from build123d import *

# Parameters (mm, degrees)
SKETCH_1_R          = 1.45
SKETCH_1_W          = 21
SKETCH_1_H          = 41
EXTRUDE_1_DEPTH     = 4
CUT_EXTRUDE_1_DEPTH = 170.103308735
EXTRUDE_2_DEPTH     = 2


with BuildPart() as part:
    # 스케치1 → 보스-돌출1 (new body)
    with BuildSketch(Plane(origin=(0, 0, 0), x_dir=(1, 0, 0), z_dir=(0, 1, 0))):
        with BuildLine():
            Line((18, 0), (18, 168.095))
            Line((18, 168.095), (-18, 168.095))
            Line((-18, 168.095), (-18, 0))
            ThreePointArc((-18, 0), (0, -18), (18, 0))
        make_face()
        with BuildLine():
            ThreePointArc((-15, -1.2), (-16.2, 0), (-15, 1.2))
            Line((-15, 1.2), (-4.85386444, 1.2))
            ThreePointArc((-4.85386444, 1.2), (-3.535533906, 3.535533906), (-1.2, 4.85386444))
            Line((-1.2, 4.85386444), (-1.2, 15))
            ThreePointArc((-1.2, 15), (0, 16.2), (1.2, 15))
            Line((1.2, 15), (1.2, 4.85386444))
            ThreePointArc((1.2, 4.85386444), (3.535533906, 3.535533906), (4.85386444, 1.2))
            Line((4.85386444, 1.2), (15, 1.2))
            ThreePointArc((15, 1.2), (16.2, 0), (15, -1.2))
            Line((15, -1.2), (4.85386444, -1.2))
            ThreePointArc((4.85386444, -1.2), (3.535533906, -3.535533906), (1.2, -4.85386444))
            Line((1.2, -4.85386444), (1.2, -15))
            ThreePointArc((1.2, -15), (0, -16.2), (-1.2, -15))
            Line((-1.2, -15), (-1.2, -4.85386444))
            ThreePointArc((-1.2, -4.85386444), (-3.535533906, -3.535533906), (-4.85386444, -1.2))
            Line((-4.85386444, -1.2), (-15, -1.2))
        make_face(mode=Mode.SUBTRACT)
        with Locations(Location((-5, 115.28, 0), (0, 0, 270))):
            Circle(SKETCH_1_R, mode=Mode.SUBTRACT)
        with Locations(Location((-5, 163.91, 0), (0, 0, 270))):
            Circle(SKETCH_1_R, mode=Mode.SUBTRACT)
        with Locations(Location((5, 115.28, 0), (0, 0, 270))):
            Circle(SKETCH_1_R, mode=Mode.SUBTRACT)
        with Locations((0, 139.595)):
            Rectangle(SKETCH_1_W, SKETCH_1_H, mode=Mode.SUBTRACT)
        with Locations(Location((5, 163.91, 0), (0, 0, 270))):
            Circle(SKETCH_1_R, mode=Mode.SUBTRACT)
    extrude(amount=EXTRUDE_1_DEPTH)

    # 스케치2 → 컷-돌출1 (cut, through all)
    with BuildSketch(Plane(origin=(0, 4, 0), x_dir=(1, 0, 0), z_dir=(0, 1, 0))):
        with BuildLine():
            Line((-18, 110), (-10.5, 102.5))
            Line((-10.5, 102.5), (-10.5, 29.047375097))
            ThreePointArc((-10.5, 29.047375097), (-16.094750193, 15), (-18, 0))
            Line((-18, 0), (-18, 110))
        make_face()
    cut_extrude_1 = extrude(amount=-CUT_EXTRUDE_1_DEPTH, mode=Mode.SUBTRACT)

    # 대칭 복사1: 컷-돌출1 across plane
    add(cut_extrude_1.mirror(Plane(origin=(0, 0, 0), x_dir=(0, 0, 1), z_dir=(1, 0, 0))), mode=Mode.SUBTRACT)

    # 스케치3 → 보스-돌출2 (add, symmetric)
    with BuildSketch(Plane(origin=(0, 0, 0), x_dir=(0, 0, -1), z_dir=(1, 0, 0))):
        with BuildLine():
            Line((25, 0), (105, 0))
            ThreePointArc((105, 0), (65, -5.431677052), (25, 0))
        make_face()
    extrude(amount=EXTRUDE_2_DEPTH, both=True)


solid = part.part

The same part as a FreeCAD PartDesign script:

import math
import FreeCAD as App
import Part
import Sketcher
Q = App.Units.Quantity

doc = App.newDocument("Part")
body = doc.addObject("PartDesign::Body", "Body")

# Sketch on XZ plane
sketch1 = body.newObject("Sketcher::SketchObject", "Sketch")
sketch1.AttachmentSupport = (doc.getObject("XZ_Plane"), [""])
sketch1.MapMode = "FlatFace"
sketch1.addGeometry([
    Part.LineSegment(App.Vector(18, 0, 0), App.Vector(18, -168.095, 0)),  # 0
    Part.LineSegment(App.Vector(18, -168.095, 0), App.Vector(-18, -168.095, 0)),  # 1
    Part.LineSegment(App.Vector(-18, -168.095, 0), App.Vector(-18, 0, 0)),  # 2
    Part.ArcOfCircle(Part.Circle(App.Vector(0, 0, 0), App.Vector(0, 0, 1), 18), math.radians(0), math.radians(180)),  # 3
    Part.LineSegment(App.Vector(-4.853864, 1.2, 0), App.Vector(-15, 1.2, 0)),  # 4
    Part.ArcOfCircle(Part.Circle(App.Vector(-15, 0, 0), App.Vector(0, 0, 1), 1.2), math.radians(90), math.radians(270)),  # 5
    Part.LineSegment(App.Vector(-15, -1.2, 0), App.Vector(-4.853864, -1.2, 0)),  # 6
    Part.ArcOfCircle(Part.Circle(App.Vector(0, 0, 0), App.Vector(0, 0, 1), 5), math.radians(-166.11346), math.radians(-103.88654)),  # 7
    Part.LineSegment(App.Vector(-1.2, -4.853864, 0), App.Vector(-1.2, -15, 0)),  # 8
    Part.ArcOfCircle(Part.Circle(App.Vector(0, -15, 0), App.Vector(0, 0, 1), 1.2), math.radians(180), math.radians(360)),  # 9
    Part.LineSegment(App.Vector(1.2, -15, 0), App.Vector(1.2, -4.853864, 0)),  # 10
    Part.ArcOfCircle(Part.Circle(App.Vector(0, 0, 0), App.Vector(0, 0, 1), 5), math.radians(-76.11346), math.radians(-13.88654)),  # 11
    Part.LineSegment(App.Vector(4.853864, -1.2, 0), App.Vector(15, -1.2, 0)),  # 12
    Part.ArcOfCircle(Part.Circle(App.Vector(15, 0, 0), App.Vector(0, 0, 1), 1.2), math.radians(-90), math.radians(90)),  # 13
    Part.LineSegment(App.Vector(15, 1.2, 0), App.Vector(4.853864, 1.2, 0)),  # 14
    Part.ArcOfCircle(Part.Circle(App.Vector(0, 0, 0), App.Vector(0, 0, 1), 5), math.radians(13.88654), math.radians(76.11346)),  # 15
    Part.LineSegment(App.Vector(1.2, 4.853864, 0), App.Vector(1.2, 15, 0)),  # 16
    Part.ArcOfCircle(Part.Circle(App.Vector(0, 15, 0), App.Vector(0, 0, 1), 1.2), math.radians(0), math.radians(180)),  # 17
    Part.LineSegment(App.Vector(-1.2, 15, 0), App.Vector(-1.2, 4.853864, 0)),  # 18
    Part.ArcOfCircle(Part.Circle(App.Vector(0, 0, 0), App.Vector(0, 0, 1), 5), math.radians(103.88654), math.radians(166.11346)),  # 19
    Part.Circle(App.Vector(-5, -115.28, 0), App.Vector(0, 0, 1), 1.45),  # 20
    Part.Circle(App.Vector(-5, -163.91, 0), App.Vector(0, 0, 1), 1.45),  # 21
    Part.Circle(App.Vector(5, -115.28, 0), App.Vector(0, 0, 1), 1.45),  # 22
    Part.LineSegment(App.Vector(10.5, -119.095, 0), App.Vector(-10.5, -119.095, 0)),  # 23
    Part.LineSegment(App.Vector(-10.5, -119.095, 0), App.Vector(-10.5, -160.095, 0)),  # 24
    Part.LineSegment(App.Vector(-10.5, -160.095, 0), App.Vector(10.5, -160.095, 0)),  # 25
    Part.LineSegment(App.Vector(10.5, -160.095, 0), App.Vector(10.5, -119.095, 0)),  # 26
    Part.Circle(App.Vector(5, -163.91, 0), App.Vector(0, 0, 1), 1.45),  # 27
], False)
sketch1.addConstraint([
    Sketcher.Constraint("Coincident", 0, 2, 1, 1),
    Sketcher.Constraint("Coincident", 1, 2, 2, 1),
    Sketcher.Constraint("Tangent", 2, 2, 3, 2),
    Sketcher.Constraint("Tangent", 3, 1, 0, 1),
    Sketcher.Constraint("Tangent", 4, 2, 5, 1),
    Sketcher.Constraint("Tangent", 5, 2, 6, 1),
    Sketcher.Constraint("Coincident", 6, 2, 7, 1),
    Sketcher.Constraint("Coincident", 7, 2, 8, 1),
    Sketcher.Constraint("Tangent", 8, 2, 9, 1),
    Sketcher.Constraint("Tangent", 9, 2, 10, 1),
    Sketcher.Constraint("Coincident", 10, 2, 11, 1),
    Sketcher.Constraint("Coincident", 11, 2, 12, 1),
    Sketcher.Constraint("Tangent", 12, 2, 13, 1),
    Sketcher.Constraint("Tangent", 13, 2, 14, 1),
    Sketcher.Constraint("Coincident", 14, 2, 15, 1),
    Sketcher.Constraint("Coincident", 15, 2, 16, 1),
    Sketcher.Constraint("Tangent", 16, 2, 17, 1),
    Sketcher.Constraint("Tangent", 17, 2, 18, 1),
    Sketcher.Constraint("Coincident", 18, 2, 19, 1),
    Sketcher.Constraint("Coincident", 19, 2, 4, 1),
    Sketcher.Constraint("Coincident", 23, 2, 24, 1),
    Sketcher.Constraint("Coincident", 24, 2, 25, 1),
    Sketcher.Constraint("Coincident", 25, 2, 26, 1),
    Sketcher.Constraint("Coincident", 26, 2, 23, 1),
    Sketcher.Constraint("Vertical", 0),
    Sketcher.Constraint("Horizontal", 1),
    Sketcher.Constraint("Vertical", 2),
    Sketcher.Constraint("Horizontal", 4),
    Sketcher.Constraint("Horizontal", 6),
    Sketcher.Constraint("Vertical", 8),
    Sketcher.Constraint("Vertical", 10),
    Sketcher.Constraint("Horizontal", 12),
    Sketcher.Constraint("Horizontal", 14),
    Sketcher.Constraint("Vertical", 16),
    Sketcher.Constraint("Vertical", 18),
    Sketcher.Constraint("Horizontal", 23),
    Sketcher.Constraint("Vertical", 24),
    Sketcher.Constraint("Horizontal", 25),
    Sketcher.Constraint("Vertical", 26),
    Sketcher.Constraint("Coincident", 3, 3, -1, 1),
    Sketcher.Constraint("Coincident", 7, 3, -1, 1),
    Sketcher.Constraint("Coincident", 11, 3, -1, 1),
    Sketcher.Constraint("Coincident", 15, 3, -1, 1),
    Sketcher.Constraint("Coincident", 19, 3, -1, 1),
    Sketcher.Constraint("Equal", 5, 9),
    Sketcher.Constraint("Equal", 7, 11),
    Sketcher.Constraint("Equal", 9, 13),
    Sketcher.Constraint("Equal", 11, 15),
    Sketcher.Constraint("Equal", 13, 17),
    Sketcher.Constraint("Equal", 15, 19),
    Sketcher.Constraint("Equal", 20, 21),
    Sketcher.Constraint("Equal", 21, 22),
    Sketcher.Constraint("Equal", 22, 27),
    Sketcher.Constraint("Symmetric", 5, 3, 13, 3, -1, 1),
    Sketcher.Constraint("Symmetric", 9, 3, 17, 3, -1, 1),
    Sketcher.Constraint("Symmetric", 20, 3, 22, 3, -2),
    Sketcher.Constraint("Symmetric", 21, 3, 27, 3, -2),
    Sketcher.Constraint("PointOnObject", 5, 3, -1),
    Sketcher.Constraint("PointOnObject", 9, 3, -2),
    Sketcher.Constraint("Vertical", 20, 3, 21, 3),
    Sketcher.Constraint("Equal", 14, 8),
    Sketcher.Constraint("Radius", 3, 18.0),
    Sketcher.Constraint("Radius", 7, 5.0),
    Sketcher.Constraint("Diameter", 20, 2.9),
    Sketcher.Constraint("Radius", 5, 1.2),
    Sketcher.Constraint("DistanceX", 23, 2, 23, 1, 21.0),
    Sketcher.Constraint("DistanceY", 24, 2, 24, 1, 41.0),
    Sketcher.Constraint("DistanceX", 5, 3, -1, 1, 15.0),
    Sketcher.Constraint("DistanceX", 20, 3, -1, 1, 5.0),
    Sketcher.Constraint("DistanceY", 1, 2, 23, 2, 49.0),
    Sketcher.Constraint("DistanceX", 23, 2, -1, 1, 10.5),
    Sketcher.Constraint("DistanceY", 0, 2, 0, 1, 168.095),
    Sketcher.Constraint("DistanceY", 20, 3, -1, 1, 115.28),
    Sketcher.Constraint("DistanceY", 21, 3, -1, 1, 163.91),
])
pad1 = body.newObject("PartDesign::Pad", "Pad")
pad1.Profile = sketch1
pad1.Length = 4
pad1.Reversed = True

# Sketch on XZ plane
sketch2 = body.newObject("Sketcher::SketchObject", "Sketch001")
sketch2.AttachmentSupport = (doc.getObject("XZ_Plane"), [""])
sketch2.MapMode = "FlatFace"
sketch2.AttachmentOffset = App.Placement(App.Vector(0, 0, -4), App.Rotation())
sketch2.addGeometry([
    Part.LineSegment(App.Vector(-10.5, -102.5, 0), App.Vector(-18, -110, 0)),
    Part.LineSegment(App.Vector(-18, -110, 0), App.Vector(-18, 0, 0)),
    Part.ArcOfCircle(Part.Circle(App.Vector(42, 0, 0), App.Vector(0, 0, 1), 60), math.radians(-180), math.radians(-151.044976)),
    Part.LineSegment(App.Vector(-10.5, -29.047375, 0), App.Vector(-10.5, -102.5, 0)),
], False)
sketch2.addConstraint([
    Sketcher.Constraint("Coincident", 0, 2, 1, 1),
    Sketcher.Constraint("Tangent", 1, 2, 2, 1),
    Sketcher.Constraint("Coincident", 2, 2, 3, 1),
    Sketcher.Constraint("Coincident", 3, 2, 0, 1),
    Sketcher.Constraint("Vertical", 1),
    Sketcher.Constraint("Vertical", 3),
    Sketcher.Constraint("PointOnObject", 2, 3, -1),
    Sketcher.Constraint("Radius", 2, 60.0),
    Sketcher.Constraint("DistanceY", 1, 1, 1, 2, 110.0),
    Sketcher.Constraint("Angle", 0, Q("-135 deg")),
    Sketcher.Constraint("DistanceX", -1, 1, 2, 3, 42.0),
    Sketcher.Constraint("DistanceX", 2, 2, -1, 1, 10.5),
])
pocket1 = body.newObject("PartDesign::Pocket", "Pocket")
pocket1.Profile = sketch2
pocket1.Type = "ThroughAll"
pocket1.Reversed = True
doc.recompute()

mirrored = body.newObject("PartDesign::Mirrored", "Mirrored")
mirrored.Originals = [pocket1]
mirrored.MirrorPlane = (doc.getObject("YZ_Plane"), [""])
body.Tip = mirrored

# Sketch on YZ plane
sketch3 = body.newObject("Sketcher::SketchObject", "Sketch002")
sketch3.AttachmentSupport = (doc.getObject("YZ_Plane"), [""])
sketch3.MapMode = "FlatFace"
sketch3.addGeometry([
    Part.LineSegment(App.Vector(0, -105, 0), App.Vector(0, -25, 0)),
    Part.ArcOfCircle(Part.Circle(App.Vector(144.568323, -65, 0), App.Vector(0, 0, 1), 150), math.radians(164.53399), math.radians(195.46601)),
], False)
sketch3.addConstraint([
    Sketcher.Constraint("Coincident", 0, 1, 1, 2),
    Sketcher.Constraint("Coincident", 1, 1, 0, 2),
    Sketcher.Constraint("Vertical", 0),
    Sketcher.Constraint("PointOnObject", 0, 1, -2),
    Sketcher.Constraint("Radius", 1, 150.0),
    Sketcher.Constraint("DistanceY", 0, 1, 0, 2, 80.0),
    Sketcher.Constraint("DistanceY", 1, 3, -1, 1, 65.0),
])
pad2 = body.newObject("PartDesign::Pad", "Pad001")
pad2.Profile = sketch3
pad2.Length = 4
pad2.Midplane = True

doc.recompute()
